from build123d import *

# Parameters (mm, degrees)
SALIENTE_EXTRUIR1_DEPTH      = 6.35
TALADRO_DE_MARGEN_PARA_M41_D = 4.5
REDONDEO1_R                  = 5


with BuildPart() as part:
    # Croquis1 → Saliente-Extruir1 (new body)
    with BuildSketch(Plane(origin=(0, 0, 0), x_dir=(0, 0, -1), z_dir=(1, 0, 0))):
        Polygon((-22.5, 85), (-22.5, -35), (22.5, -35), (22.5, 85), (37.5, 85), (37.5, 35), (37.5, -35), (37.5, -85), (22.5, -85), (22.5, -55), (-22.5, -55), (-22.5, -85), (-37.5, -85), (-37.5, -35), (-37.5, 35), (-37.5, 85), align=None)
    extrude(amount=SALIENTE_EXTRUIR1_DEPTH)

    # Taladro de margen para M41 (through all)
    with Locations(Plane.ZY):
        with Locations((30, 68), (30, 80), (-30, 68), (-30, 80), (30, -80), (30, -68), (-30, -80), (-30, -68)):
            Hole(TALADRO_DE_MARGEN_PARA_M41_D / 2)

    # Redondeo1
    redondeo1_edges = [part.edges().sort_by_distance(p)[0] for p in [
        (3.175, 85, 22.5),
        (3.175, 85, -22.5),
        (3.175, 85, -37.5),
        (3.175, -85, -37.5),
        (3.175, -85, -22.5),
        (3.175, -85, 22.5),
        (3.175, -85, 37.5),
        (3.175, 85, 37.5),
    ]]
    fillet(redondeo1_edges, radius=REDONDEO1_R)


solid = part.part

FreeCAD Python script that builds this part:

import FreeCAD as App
import Part
import Sketcher

V = App.Vector


def edges_at(feature, points):
    """Names of the edges that pass closest to the given points."""
    edges = feature.Shape.Edges
    near = lambda p: min(range(len(edges)), key=lambda i: edges[i].distToShape(Part.Vertex(*p))[0])
    return sorted({f"Edge{near(p) + 1}" for p in points})


def add_polygon(sketch, points):
    """Adds a closed chain of lines whose ends are joined by coincident constraints."""
    first, n = sketch.GeometryCount, len(points)
    for a, b in zip(points, points[1:] + points[:1]):
        sketch.addGeometry(Part.LineSegment(App.Vector(*a, 0), App.Vector(*b, 0)), False)
    for i in range(n):
        sketch.addConstraint(Sketcher.Constraint("Coincident", first + i, 2, first + (i + 1) % n, 1))

doc = App.newDocument("Part")
body = doc.addObject("PartDesign::Body", "Body")

# Sketch on YZ plane
sketch1 = doc.addObject("Sketcher::SketchObject", "Sketch")
body.addObject(sketch1)
sketch1.AttachmentSupport = (doc.YZ_Plane, [""])
sketch1.MapMode = "FlatFace"
add_polygon(sketch1, [(-35, 22), (85, 22), (85, 38), (-85, 38), (-85, 22), (-55, 22), (-55, -22), (-85, -22), (-85, -38), (85, -38), (85, -22), (-35, -22)])  # lines 0-11
sketch1.addConstraint(Sketcher.Constraint("Horizontal", 0))
sketch1.addConstraint(Sketcher.Constraint("Vertical", 1))
sketch1.addConstraint(Sketcher.Constraint("Horizontal", 2))
sketch1.addConstraint(Sketcher.Constraint("Vertical", 3))
sketch1.addConstraint(Sketcher.Constraint("Horizontal", 4))
sketch1.addConstraint(Sketcher.Constraint("Vertical", 5))
sketch1.addConstraint(Sketcher.Constraint("Horizontal", 6))
sketch1.addConstraint(Sketcher.Constraint("Vertical", 7))
sketch1.addConstraint(Sketcher.Constraint("Horizontal", 8))
sketch1.addConstraint(Sketcher.Constraint("Vertical", 9))
sketch1.addConstraint(Sketcher.Constraint("Horizontal", 10))
sketch1.addConstraint(Sketcher.Constraint("Vertical", 11))
sketch1.addConstraint(Sketcher.Constraint("Symmetric", 0, 2, 6, 2, -1, 1))
sketch1.addConstraint(Sketcher.Constraint("Symmetric", 2, 2, 8, 2, -1, 1))
sketch1.addConstraint(Sketcher.Constraint("Symmetric", 0, 2, 3, 2, -2))
sketch1.addConstraint(Sketcher.Constraint("Horizontal", 6, 2, 9, 2))
sketch1.addConstraint(Sketcher.Constraint("DistanceX", 0, 1, 0, 2, 120.0))
sketch1.addConstraint(Sketcher.Constraint("DistanceX", 2, 2, 2, 1, 170.0))
sketch1.addConstraint(Sketcher.Constraint("DistanceX", 4, 1, 4, 2, 30.0))
sketch1.addConstraint(Sketcher.Constraint("DistanceY", 1, 1, 1, 2, 15.0))
sketch1.addConstraint(Sketcher.Constraint("DistanceY", 5, 2, 5, 1, 45.0))
pad1 = doc.addObject("PartDesign::Pad", "Pad")
body.addObject(pad1)
pad1.Profile = sketch1
pad1.Length = 6.35

# Sketch on YZ plane
sketch2 = doc.addObject("Sketcher::SketchObject", "Sketch001")
body.addObject(sketch2)
sketch2.AttachmentSupport = (doc.YZ_Plane, [""])
sketch2.MapMode = "FlatFace"
sketch2.addGeometry(Part.Circle(V(68, 30, 0), V(0, 0, 1), 2.2), False)
sketch2.addGeometry(Part.Circle(V(80, 30, 0), V(0, 0, 1), 2.2), False)
sketch2.addGeometry(Part.Circle(V(68, -30, 0), V(0, 0, 1), 2.2), False)
sketch2.addGeometry(Part.Circle(V(80, -30, 0), V(0, 0, 1), 2.2), False)
sketch2.addGeometry(Part.Circle(V(-80, 30, 0), V(0, 0, 1), 2.2), False)
sketch2.addGeometry(Part.Circle(V(-68, 30, 0), V(0, 0, 1), 2.2), False)
sketch2.addGeometry(Part.Circle(V(-80, -30, 0), V(0, 0, 1), 2.2), False)
sketch2.addGeometry(Part.Circle(V(-68, -30, 0), V(0, 0, 1), 2.2), False)
sketch2.addConstraint(Sketcher.Constraint("Equal", 0, 1))
sketch2.addConstraint(Sketcher.Constraint("Equal", 1, 2))
sketch2.addConstraint(Sketcher.Constraint("Equal", 2, 3))
sketch2.addConstraint(Sketcher.Constraint("Equal", 3, 4))
sketch2.addConstraint(Sketcher.Constraint("Equal", 4, 5))
sketch2.addConstraint(Sketcher.Constraint("Equal", 5, 6))
sketch2.addConstraint(Sketcher.Constraint("Equal", 6, 7))
sketch2.addConstraint(Sketcher.Constraint("Symmetric", 3, 3, 4, 3, -1, 1))
sketch2.addConstraint(Sketcher.Constraint("Symmetric", 2, 3, 5, 3, -1, 1))
sketch2.addConstraint(Sketcher.Constraint("Symmetric", 1, 3, 6, 3, -1, 1))
sketch2.addConstraint(Sketcher.Constraint("Symmetric", 0, 3, 7, 3, -1, 1))
sketch2.addConstraint(Sketcher.Constraint("Symmetric", 1, 3, 4, 3, -2))
sketch2.addConstraint(Sketcher.Constraint("Symmetric", 0, 3, 5, 3, -2))
sketch2.addConstraint(Sketcher.Constraint("Horizontal", 0, 3, 1, 3))
sketch2.addConstraint(Sketcher.Constraint("Diameter", 0, 4.5))
sketch2.addConstraint(Sketcher.Constraint("DistanceX", -1, 1, 0, 3, 68.0))
sketch2.addConstraint(Sketcher.Constraint("DistanceY", -1, 1, 0, 3, 30.0))
sketch2.addConstraint(Sketcher.Constraint("DistanceX", -1, 1, 1, 3, 80.0))
doc.recompute()
hole = doc.addObject("PartDesign::Hole", "Hole")
body.addObject(hole)
hole.Profile = sketch2
hole.ThreadType = "None"
hole.Diameter = 4.5
hole.DepthType = "ThroughAll"
hole.Reversed = True
doc.recompute()

fillet = doc.addObject("PartDesign::Fillet", "Fillet")
body.addObject(fillet)
fillet.Base = (hole, edges_at(hole, [
    (3.175, 85, 22.5),
    (3.175, 85, -22.5),
    (3.175, 85, -37.5),
    (3.175, -85, -37.5),
    (3.175, -85, -22.5),
    (3.175, -85, 22.5),
    (3.175, -85, 37.5),
    (3.175, 85, 37.5),
]))
fillet.Radius = 5

doc.recompute()
